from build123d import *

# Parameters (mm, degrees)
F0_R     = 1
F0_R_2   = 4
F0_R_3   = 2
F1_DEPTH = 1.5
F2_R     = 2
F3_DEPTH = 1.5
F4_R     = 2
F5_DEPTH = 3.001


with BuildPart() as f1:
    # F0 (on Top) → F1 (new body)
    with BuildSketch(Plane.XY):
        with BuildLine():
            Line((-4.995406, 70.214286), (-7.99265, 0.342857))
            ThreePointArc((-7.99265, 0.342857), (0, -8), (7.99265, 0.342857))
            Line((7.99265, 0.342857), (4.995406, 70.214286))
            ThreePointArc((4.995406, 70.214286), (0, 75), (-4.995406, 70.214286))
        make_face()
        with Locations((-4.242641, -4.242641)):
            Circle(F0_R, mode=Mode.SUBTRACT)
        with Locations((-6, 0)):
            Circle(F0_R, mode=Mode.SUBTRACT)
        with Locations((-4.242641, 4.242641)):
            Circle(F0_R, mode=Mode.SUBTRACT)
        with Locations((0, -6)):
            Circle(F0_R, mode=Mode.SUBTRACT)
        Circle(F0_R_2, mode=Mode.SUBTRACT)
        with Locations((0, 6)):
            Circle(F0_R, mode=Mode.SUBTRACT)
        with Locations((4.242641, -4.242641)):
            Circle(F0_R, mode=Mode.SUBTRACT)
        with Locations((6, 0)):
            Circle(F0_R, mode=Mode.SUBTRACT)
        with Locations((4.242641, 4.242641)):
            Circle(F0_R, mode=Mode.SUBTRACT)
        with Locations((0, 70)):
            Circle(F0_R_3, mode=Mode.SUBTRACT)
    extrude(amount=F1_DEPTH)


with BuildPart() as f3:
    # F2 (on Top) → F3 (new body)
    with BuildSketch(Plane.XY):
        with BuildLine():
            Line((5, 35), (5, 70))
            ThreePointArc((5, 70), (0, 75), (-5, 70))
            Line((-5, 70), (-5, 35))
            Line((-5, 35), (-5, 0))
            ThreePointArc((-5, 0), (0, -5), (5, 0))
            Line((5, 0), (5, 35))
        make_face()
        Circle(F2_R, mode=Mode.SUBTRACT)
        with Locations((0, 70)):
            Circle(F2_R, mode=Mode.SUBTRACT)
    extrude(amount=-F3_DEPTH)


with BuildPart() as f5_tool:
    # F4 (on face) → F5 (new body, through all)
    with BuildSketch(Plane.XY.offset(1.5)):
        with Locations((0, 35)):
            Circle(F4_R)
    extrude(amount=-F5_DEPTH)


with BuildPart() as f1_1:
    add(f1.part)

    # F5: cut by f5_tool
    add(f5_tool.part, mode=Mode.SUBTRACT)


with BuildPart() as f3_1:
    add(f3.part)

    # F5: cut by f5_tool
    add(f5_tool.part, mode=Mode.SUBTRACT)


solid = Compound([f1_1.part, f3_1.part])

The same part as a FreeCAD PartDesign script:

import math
import FreeCAD as App
import Part
import Sketcher
Q = App.Units.Quantity

doc = App.newDocument("Part")
body = doc.addObject("PartDesign::Body", "Body")

# Sketch on XY plane
sketch1 = doc.addObject("Sketcher::SketchObject", "Sketch")
body.addObject(sketch1)
sketch1.AttachmentSupport = (doc.XY_Plane, [""])
sketch1.MapMode = "FlatFace"
sketch1.addGeometry(Part.LineSegment(App.Vector(-4.995406, 70.214286, 0), App.Vector(-7.99265, 0.342857, 0)), False)
sketch1.addGeometry(Part.ArcOfCircle(Part.Circle(App.Vector(0, 0, 0), App.Vector(0, 0, 1), 8), math.radians(177.543718), math.radians(362.456282)), False)
sketch1.addGeometry(Part.LineSegment(App.Vector(7.99265, 0.342857, 0), App.Vector(4.995406, 70.214286, 0)), False)
sketch1.addGeometry(Part.ArcOfCircle(Part.Circle(App.Vector(0, 70, 0), App.Vector(0, 0, 1), 5), math.radians(2.456289), math.radians(177.543711)), False)
sketch1.addGeometry(Part.Circle(App.Vector(-6, 0, 0), App.Vector(0, 0, 1), 1), False)
sketch1.addGeometry(Part.Circle(App.Vector(-4.242641, -4.242641, 0), App.Vector(0, 0, 1), 1), False)
sketch1.addGeometry(Part.Circle(App.Vector(-4.242641, 4.242641, 0), App.Vector(0, 0, 1), 1), False)
sketch1.addGeometry(Part.Circle(App.Vector(0, -6, 0), App.Vector(0, 0, 1), 1), False)
sketch1.addGeometry(Part.Circle(App.Vector(0, 0, 0), App.Vector(0, 0, 1), 4), False)
sketch1.addGeometry(Part.Circle(App.Vector(0, 6, 0), App.Vector(0, 0, 1), 1), False)
sketch1.addGeometry(Part.Circle(App.Vector(4.242641, -4.242641, 0), App.Vector(0, 0, 1), 1), False)
sketch1.addGeometry(Part.Circle(App.Vector(6, 0, 0), App.Vector(0, 0, 1), 1), False)
sketch1.addGeometry(Part.Circle(App.Vector(4.242641, 4.242641, 0), App.Vector(0, 0, 1), 1), False)
sketch1.addGeometry(Part.Circle(App.Vector(0, 70, 0), App.Vector(0, 0, 1), 2), False)
sketch1.addConstraint(Sketcher.Constraint("Tangent", 0, 2, 1, 1))
sketch1.addConstraint(Sketcher.Constraint("Tangent", 1, 2, 2, 1))
sketch1.addConstraint(Sketcher.Constraint("Tangent", 2, 2, 3, 1))
sketch1.addConstraint(Sketcher.Constraint("Tangent", 3, 2, 0, 1))
sketch1.addConstraint(Sketcher.Constraint("Coincident", 1, 3, -1, 1))
sketch1.addConstraint(Sketcher.Constraint("Coincident", 8, 3, -1, 1))
sketch1.addConstraint(Sketcher.Constraint("Coincident", 13, 3, 3, 3))
sketch1.addConstraint(Sketcher.Constraint("Equal", 4, 5))
sketch1.addConstraint(Sketcher.Constraint("Equal", 5, 6))
sketch1.addConstraint(Sketcher.Constraint("Equal", 6, 7))
sketch1.addConstraint(Sketcher.Constraint("Equal", 7, 9))
sketch1.addConstraint(Sketcher.Constraint("Equal", 9, 10))
sketch1.addConstraint(Sketcher.Constraint("Equal", 10, 11))
sketch1.addConstraint(Sketcher.Constraint("Equal", 11, 12))
sketch1.addConstraint(Sketcher.Constraint("Symmetric", 7, 3, 9, 3, -1, 1))
sketch1.addConstraint(Sketcher.Constraint("Symmetric", 6, 3, 10, 3, -1, 1))
sketch1.addConstraint(Sketcher.Constraint("Symmetric", 4, 3, 11, 3, -1, 1))
sketch1.addConstraint(Sketcher.Constraint("Symmetric", 5, 3, 12, 3, -1, 1))
sketch1.addConstraint(Sketcher.Constraint("Symmetric", 5, 3, 10, 3, -2))
sketch1.addConstraint(Sketcher.Constraint("PointOnObject", 3, 3, -2))
sketch1.addConstraint(Sketcher.Constraint("PointOnObject", 4, 3, -1))
sketch1.addConstraint(Sketcher.Constraint("PointOnObject", 7, 3, -2))
sketch1.addConstraint(Sketcher.Constraint("Diameter", 4, Q("2 mm")))
sketch1.addConstraint(Sketcher.Constraint("Diameter", 8, Q("8 mm")))
sketch1.addConstraint(Sketcher.Constraint("Diameter", 13, Q("4 mm")))
sketch1.addConstraint(Sketcher.Constraint("Radius", 1, Q("8 mm")))
sketch1.addConstraint(Sketcher.Constraint("Radius", 3, Q("5 mm")))
sketch1.addConstraint(Sketcher.Constraint("DistanceY", -1, 1, 3, 3, Q("70 mm")))
sketch1.addConstraint(Sketcher.Constraint("DistanceX", 4, 3, -1, 1, Q("6 mm")))
sketch1.addConstraint(Sketcher.Constraint("DistanceY", 7, 3, -1, 1, Q("6 mm")))
sketch1.addConstraint(Sketcher.Constraint("DistanceY", 5, 3, 0, 2, Q("4.585498 mm")))
sketch1.addConstraint(Sketcher.Constraint("DistanceX", 5, 3, -1, 1, Q("4.242641 mm")))
pad1 = doc.addObject("PartDesign::Pad", "Pad")
body.addObject(pad1)
pad1.Profile = sketch1
pad1.Length = 1.5
body2 = doc.addObject("PartDesign::Body", "Body001")

# Sketch on XY plane
sketch2 = doc.addObject("Sketcher::SketchObject", "Sketch001")
body2.addObject(sketch2)
sketch2.AttachmentSupport = (doc.getObject("XY_Plane001"), [""])
sketch2.MapMode = "FlatFace"
sketch2.addGeometry(Part.ArcOfCircle(Part.Circle(App.Vector(0, 70, 0), App.Vector(0, 0, 1), 5), math.radians(0), math.radians(180)), False)
sketch2.addGeometry(Part.LineSegment(App.Vector(-5, 70, 0), App.Vector(-5, 0, 0)), False)
sketch2.addGeometry(Part.ArcOfCircle(Part.Circle(App.Vector(0, 0, 0), App.Vector(0, 0, 1), 5), math.radians(180), math.radians(360)), False)
sketch2.addGeometry(Part.LineSegment(App.Vector(5, 0, 0), App.Vector(5, 70, 0)), False)
sketch2.addGeometry(Part.Circle(App.Vector(0, 0, 0), App.Vector(0, 0, 1), 2), False)
sketch2.addGeometry(Part.Circle(App.Vector(0, 70, 0), App.Vector(0, 0, 1), 2), False)
sketch2.addConstraint(Sketcher.Constraint("Tangent", 0, 2, 1, 1))
sketch2.addConstraint(Sketcher.Constraint("Tangent", 1, 2, 2, 1))
sketch2.addConstraint(Sketcher.Constraint("Tangent", 2, 2, 3, 1))
sketch2.addConstraint(Sketcher.Constraint("Tangent", 3, 2, 0, 1))
sketch2.addConstraint(Sketcher.Constraint("Vertical", 1))
sketch2.addConstraint(Sketcher.Constraint("Vertical", 3))
sketch2.addConstraint(Sketcher.Constraint("Coincident", 2, 3, -1, 1))
sketch2.addConstraint(Sketcher.Constraint("Coincident", 4, 3, -1, 1))
sketch2.addConstraint(Sketcher.Constraint("Coincident", 5, 3, 0, 3))
sketch2.addConstraint(Sketcher.Constraint("Equal", 4, 5))
sketch2.addConstraint(Sketcher.Constraint("Diameter", 4, Q("4 mm")))
sketch2.addConstraint(Sketcher.Constraint("Radius", 0, Q("5 mm")))
sketch2.addConstraint(Sketcher.Constraint("DistanceY", 1, 2, 1, 1, Q("70 mm")))
pad2 = doc.addObject("PartDesign::Pad", "Pad001")
body2.addObject(pad2)
pad2.Profile = sketch2
pad2.Length = 1.5
pad2.Reversed = True
body3 = doc.addObject("PartDesign::Body", "Body002")

# Sketch on XY plane
sketch3 = doc.addObject("Sketcher::SketchObject", "Sketch002")
body3.addObject(sketch3)
sketch3.AttachmentSupport = (doc.getObject("XY_Plane002"), [""])
sketch3.MapMode = "FlatFace"
sketch3.AttachmentOffset = App.Placement(App.Vector(0, 0, 1.5), App.Rotation())
sketch3.addGeometry(Part.Circle(App.Vector(0, 35, 0), App.Vector(0, 0, 1), 2), False)
sketch3.addConstraint(Sketcher.Constraint("PointOnObject", 0, 3, -2))
sketch3.addConstraint(Sketcher.Constraint("Diameter", 0, Q("4 mm")))
sketch3.addConstraint(Sketcher.Constraint("DistanceY", -1, 1, 0, 3, Q("35 mm")))
pad3 = doc.addObject("PartDesign::Pad", "Pad002")
body3.addObject(pad3)
pad3.Profile = sketch3
pad3.Length = 3.001
pad3.Reversed = True
doc.recompute()

body4 = doc.addObject("PartDesign::Body", "Body003")
body4.BaseFeature = body3
boolean = doc.addObject("PartDesign::Boolean", "Boolean")
body.addObject(boolean)
boolean.Type = "Cut"
boolean.addObjects([body4])
doc.recompute()

boolean2 = doc.addObject("PartDesign::Boolean", "Boolean001")
body2.addObject(boolean2)
boolean2.Type = "Cut"
boolean2.addObjects([body3])

doc.recompute()
